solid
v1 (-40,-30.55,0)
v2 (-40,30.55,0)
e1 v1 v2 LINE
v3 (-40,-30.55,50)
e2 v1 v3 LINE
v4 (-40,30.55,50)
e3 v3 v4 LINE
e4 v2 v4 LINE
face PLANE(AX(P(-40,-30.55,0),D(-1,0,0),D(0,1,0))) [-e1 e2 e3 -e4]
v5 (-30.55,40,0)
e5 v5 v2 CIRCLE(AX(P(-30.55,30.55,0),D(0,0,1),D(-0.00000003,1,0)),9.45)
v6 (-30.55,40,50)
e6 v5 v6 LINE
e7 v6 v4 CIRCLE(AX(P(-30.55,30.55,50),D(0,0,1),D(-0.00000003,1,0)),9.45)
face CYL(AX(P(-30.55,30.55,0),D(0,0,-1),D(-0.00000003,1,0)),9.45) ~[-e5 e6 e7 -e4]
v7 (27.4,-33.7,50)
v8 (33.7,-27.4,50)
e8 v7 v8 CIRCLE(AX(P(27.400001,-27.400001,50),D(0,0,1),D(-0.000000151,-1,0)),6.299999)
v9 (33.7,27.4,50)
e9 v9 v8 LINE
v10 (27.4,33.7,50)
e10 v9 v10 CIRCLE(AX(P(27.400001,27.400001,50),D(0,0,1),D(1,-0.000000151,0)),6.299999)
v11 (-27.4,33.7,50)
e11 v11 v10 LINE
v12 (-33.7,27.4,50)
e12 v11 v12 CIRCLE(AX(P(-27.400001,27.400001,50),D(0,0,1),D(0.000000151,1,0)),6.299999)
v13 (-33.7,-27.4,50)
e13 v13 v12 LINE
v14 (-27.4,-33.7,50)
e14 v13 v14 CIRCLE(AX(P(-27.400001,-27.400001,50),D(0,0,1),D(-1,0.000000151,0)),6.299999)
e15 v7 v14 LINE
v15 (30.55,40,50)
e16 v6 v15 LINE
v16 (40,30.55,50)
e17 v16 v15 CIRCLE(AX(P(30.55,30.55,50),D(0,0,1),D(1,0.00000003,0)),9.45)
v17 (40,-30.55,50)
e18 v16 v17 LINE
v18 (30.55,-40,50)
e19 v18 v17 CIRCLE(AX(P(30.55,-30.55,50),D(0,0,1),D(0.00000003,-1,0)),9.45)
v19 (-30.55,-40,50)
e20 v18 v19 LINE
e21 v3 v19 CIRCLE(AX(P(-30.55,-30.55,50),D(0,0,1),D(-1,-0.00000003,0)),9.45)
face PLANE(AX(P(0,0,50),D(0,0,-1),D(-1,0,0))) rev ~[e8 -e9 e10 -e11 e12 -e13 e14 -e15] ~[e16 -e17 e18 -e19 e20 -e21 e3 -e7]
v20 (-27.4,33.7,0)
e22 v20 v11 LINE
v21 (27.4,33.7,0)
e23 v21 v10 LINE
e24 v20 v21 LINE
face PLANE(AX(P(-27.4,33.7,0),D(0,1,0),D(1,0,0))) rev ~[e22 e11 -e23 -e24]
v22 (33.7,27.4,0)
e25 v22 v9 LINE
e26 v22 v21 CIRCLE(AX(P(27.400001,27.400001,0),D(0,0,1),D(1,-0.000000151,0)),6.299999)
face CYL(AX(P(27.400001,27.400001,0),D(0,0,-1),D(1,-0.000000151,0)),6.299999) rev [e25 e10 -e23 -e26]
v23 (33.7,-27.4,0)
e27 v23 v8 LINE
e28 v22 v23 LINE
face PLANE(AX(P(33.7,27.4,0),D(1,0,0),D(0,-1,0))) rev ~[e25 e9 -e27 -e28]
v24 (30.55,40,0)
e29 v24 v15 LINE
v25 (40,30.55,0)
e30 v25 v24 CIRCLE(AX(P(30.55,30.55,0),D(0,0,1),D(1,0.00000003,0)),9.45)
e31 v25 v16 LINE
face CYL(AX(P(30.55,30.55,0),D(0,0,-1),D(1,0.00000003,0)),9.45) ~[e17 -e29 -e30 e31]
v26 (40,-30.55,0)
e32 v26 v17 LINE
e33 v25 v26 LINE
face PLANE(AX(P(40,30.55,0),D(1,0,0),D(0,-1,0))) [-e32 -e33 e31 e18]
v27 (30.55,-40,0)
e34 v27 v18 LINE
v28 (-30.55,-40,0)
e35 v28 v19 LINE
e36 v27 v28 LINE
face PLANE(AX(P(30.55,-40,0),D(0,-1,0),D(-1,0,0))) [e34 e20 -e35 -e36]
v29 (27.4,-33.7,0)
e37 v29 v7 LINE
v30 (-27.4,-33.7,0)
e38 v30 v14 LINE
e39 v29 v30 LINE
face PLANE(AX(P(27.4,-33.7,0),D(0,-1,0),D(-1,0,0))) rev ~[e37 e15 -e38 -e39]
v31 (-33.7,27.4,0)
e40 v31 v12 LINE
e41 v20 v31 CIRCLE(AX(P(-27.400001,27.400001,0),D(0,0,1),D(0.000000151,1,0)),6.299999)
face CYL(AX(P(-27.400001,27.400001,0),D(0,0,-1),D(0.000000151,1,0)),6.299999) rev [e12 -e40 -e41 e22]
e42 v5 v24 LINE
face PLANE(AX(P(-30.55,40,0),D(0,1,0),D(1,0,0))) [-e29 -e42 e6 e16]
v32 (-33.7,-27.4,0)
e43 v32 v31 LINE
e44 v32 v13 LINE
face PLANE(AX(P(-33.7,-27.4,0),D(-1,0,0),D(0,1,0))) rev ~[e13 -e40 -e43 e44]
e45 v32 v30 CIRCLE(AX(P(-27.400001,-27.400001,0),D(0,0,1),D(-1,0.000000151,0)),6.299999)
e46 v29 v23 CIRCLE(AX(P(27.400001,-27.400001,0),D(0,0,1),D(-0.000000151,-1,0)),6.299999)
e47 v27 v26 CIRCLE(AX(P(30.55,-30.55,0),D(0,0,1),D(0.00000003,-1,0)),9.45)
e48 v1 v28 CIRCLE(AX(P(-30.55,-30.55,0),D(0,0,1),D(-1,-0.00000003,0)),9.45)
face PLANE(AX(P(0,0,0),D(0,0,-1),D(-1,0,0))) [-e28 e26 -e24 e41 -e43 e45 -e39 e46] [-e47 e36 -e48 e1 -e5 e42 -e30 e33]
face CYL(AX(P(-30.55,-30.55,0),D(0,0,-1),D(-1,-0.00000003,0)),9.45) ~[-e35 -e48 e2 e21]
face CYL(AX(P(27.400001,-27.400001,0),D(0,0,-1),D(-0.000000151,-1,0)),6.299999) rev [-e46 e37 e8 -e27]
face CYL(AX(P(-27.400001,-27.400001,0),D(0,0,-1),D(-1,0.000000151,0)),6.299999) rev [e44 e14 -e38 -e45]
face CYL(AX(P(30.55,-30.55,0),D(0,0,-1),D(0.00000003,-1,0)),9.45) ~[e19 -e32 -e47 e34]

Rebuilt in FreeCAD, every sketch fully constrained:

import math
import FreeCAD as App
import Part
import Sketcher

doc = App.newDocument("Part")
body = doc.addObject("PartDesign::Body", "Body")

# Sketch on XY plane
sketch1 = body.newObject("Sketcher::SketchObject", "Sketch")
sketch1.AttachmentSupport = (doc.getObject("XY_Plane"), [""])
sketch1.MapMode = "FlatFace"
sketch1.addGeometry([
    Part.LineSegment(App.Vector(31, 40, 0), App.Vector(-31, 40, 0)),  # 0
    Part.ArcOfCircle(Part.Circle(App.Vector(-31, 31, 0), App.Vector(0, 0, 1), 9), math.radians(90), math.radians(180)),  # 1
    Part.LineSegment(App.Vector(-40, 31, 0), App.Vector(-40, -31, 0)),  # 2
    Part.ArcOfCircle(Part.Circle(App.Vector(-31, -31, 0), App.Vector(0, 0, 1), 9), math.radians(-180), math.radians(-90)),  # 3
    Part.LineSegment(App.Vector(-31, -40, 0), App.Vector(31, -40, 0)),  # 4
    Part.ArcOfCircle(Part.Circle(App.Vector(31, -31, 0), App.Vector(0, 0, 1), 9), math.radians(-90), math.radians(0)),  # 5
    Part.LineSegment(App.Vector(40, -31, 0), App.Vector(40, 31, 0)),  # 6
    Part.ArcOfCircle(Part.Circle(App.Vector(31, 31, 0), App.Vector(0, 0, 1), 9), math.radians(0), math.radians(90)),  # 7
    Part.LineSegment(App.Vector(-27, 34, 0), App.Vector(27, 34, 0)),  # 8
    Part.ArcOfCircle(Part.Circle(App.Vector(27, 27, 0), App.Vector(0, 0, 1), 6), math.radians(0), math.radians(90)),  # 9
    Part.LineSegment(App.Vector(34, 27, 0), App.Vector(34, -27, 0)),  # 10
    Part.ArcOfCircle(Part.Circle(App.Vector(27, -27, 0), App.Vector(0, 0, 1), 6), math.radians(-90), math.radians(0)),  # 11
    Part.LineSegment(App.Vector(27, -34, 0), App.Vector(-27, -34, 0)),  # 12
    Part.ArcOfCircle(Part.Circle(App.Vector(-27, -27, 0), App.Vector(0, 0, 1), 6), math.radians(180), math.radians(270)),  # 13
    Part.LineSegment(App.Vector(-34, -27, 0), App.Vector(-34, 27, 0)),  # 14
    Part.ArcOfCircle(Part.Circle(App.Vector(-27, 27, 0), App.Vector(0, 0, 1), 6), math.radians(90), math.radians(180)),  # 15
], False)
sketch1.addConstraint([
    Sketcher.Constraint("Tangent", 0, 2, 1, 1),
    Sketcher.Constraint("Tangent", 1, 2, 2, 1),
    Sketcher.Constraint("Tangent", 2, 2, 3, 1),
    Sketcher.Constraint("Tangent", 3, 2, 4, 1),
    Sketcher.Constraint("Tangent", 4, 2, 5, 1),
    Sketcher.Constraint("Tangent", 5, 2, 6, 1),
    Sketcher.Constraint("Tangent", 6, 2, 7, 1),
    Sketcher.Constraint("Tangent", 7, 2, 0, 1),
    Sketcher.Constraint("Tangent", 8, 2, 9, 2),
    Sketcher.Constraint("Tangent", 9, 1, 10, 1),
    Sketcher.Constraint("Tangent", 10, 2, 11, 2),
    Sketcher.Constraint("Tangent", 11, 1, 12, 1),
    Sketcher.Constraint("Tangent", 12, 2, 13, 2),
    Sketcher.Constraint("Tangent", 13, 1, 14, 1),
    Sketcher.Constraint("Tangent", 14, 2, 15, 2),
    Sketcher.Constraint("Tangent", 15, 1, 8, 1),
    Sketcher.Constraint("Horizontal", 0),
    Sketcher.Constraint("Vertical", 2),
    Sketcher.Constraint("Horizontal", 4),
    Sketcher.Constraint("Vertical", 6),
    Sketcher.Constraint("Horizontal", 8),
    Sketcher.Constraint("Vertical", 10),
    Sketcher.Constraint("Horizontal", 12),
    Sketcher.Constraint("Vertical", 14),
    Sketcher.Constraint("Equal", 1, 3),
    Sketcher.Constraint("Equal", 3, 5),
    Sketcher.Constraint("Equal", 5, 7),
    Sketcher.Constraint("Equal", 9, 11),
    Sketcher.Constraint("Equal", 11, 13),
    Sketcher.Constraint("Equal", 13, 15),
    Sketcher.Constraint("Symmetric", 1, 3, 5, 3, -1, 1),
    Sketcher.Constraint("Symmetric", 9, 3, 13, 3, -1, 1),
    Sketcher.Constraint("Equal", 4, 2),
    Sketcher.Constraint("Equal", 12, 10),
    Sketcher.Constraint("Radius", 9, 6.299999),
    Sketcher.Constraint("Radius", 1, 9.45),
    Sketcher.Constraint("DistanceX", 0, 2, 0, 1, 61.1),
    Sketcher.Constraint("DistanceX", 8, 1, 8, 2, 54.8),
])
pad1 = body.newObject("PartDesign::Pad", "Pad")
pad1.Profile = sketch1
pad1.Length = 50

doc.recompute()
